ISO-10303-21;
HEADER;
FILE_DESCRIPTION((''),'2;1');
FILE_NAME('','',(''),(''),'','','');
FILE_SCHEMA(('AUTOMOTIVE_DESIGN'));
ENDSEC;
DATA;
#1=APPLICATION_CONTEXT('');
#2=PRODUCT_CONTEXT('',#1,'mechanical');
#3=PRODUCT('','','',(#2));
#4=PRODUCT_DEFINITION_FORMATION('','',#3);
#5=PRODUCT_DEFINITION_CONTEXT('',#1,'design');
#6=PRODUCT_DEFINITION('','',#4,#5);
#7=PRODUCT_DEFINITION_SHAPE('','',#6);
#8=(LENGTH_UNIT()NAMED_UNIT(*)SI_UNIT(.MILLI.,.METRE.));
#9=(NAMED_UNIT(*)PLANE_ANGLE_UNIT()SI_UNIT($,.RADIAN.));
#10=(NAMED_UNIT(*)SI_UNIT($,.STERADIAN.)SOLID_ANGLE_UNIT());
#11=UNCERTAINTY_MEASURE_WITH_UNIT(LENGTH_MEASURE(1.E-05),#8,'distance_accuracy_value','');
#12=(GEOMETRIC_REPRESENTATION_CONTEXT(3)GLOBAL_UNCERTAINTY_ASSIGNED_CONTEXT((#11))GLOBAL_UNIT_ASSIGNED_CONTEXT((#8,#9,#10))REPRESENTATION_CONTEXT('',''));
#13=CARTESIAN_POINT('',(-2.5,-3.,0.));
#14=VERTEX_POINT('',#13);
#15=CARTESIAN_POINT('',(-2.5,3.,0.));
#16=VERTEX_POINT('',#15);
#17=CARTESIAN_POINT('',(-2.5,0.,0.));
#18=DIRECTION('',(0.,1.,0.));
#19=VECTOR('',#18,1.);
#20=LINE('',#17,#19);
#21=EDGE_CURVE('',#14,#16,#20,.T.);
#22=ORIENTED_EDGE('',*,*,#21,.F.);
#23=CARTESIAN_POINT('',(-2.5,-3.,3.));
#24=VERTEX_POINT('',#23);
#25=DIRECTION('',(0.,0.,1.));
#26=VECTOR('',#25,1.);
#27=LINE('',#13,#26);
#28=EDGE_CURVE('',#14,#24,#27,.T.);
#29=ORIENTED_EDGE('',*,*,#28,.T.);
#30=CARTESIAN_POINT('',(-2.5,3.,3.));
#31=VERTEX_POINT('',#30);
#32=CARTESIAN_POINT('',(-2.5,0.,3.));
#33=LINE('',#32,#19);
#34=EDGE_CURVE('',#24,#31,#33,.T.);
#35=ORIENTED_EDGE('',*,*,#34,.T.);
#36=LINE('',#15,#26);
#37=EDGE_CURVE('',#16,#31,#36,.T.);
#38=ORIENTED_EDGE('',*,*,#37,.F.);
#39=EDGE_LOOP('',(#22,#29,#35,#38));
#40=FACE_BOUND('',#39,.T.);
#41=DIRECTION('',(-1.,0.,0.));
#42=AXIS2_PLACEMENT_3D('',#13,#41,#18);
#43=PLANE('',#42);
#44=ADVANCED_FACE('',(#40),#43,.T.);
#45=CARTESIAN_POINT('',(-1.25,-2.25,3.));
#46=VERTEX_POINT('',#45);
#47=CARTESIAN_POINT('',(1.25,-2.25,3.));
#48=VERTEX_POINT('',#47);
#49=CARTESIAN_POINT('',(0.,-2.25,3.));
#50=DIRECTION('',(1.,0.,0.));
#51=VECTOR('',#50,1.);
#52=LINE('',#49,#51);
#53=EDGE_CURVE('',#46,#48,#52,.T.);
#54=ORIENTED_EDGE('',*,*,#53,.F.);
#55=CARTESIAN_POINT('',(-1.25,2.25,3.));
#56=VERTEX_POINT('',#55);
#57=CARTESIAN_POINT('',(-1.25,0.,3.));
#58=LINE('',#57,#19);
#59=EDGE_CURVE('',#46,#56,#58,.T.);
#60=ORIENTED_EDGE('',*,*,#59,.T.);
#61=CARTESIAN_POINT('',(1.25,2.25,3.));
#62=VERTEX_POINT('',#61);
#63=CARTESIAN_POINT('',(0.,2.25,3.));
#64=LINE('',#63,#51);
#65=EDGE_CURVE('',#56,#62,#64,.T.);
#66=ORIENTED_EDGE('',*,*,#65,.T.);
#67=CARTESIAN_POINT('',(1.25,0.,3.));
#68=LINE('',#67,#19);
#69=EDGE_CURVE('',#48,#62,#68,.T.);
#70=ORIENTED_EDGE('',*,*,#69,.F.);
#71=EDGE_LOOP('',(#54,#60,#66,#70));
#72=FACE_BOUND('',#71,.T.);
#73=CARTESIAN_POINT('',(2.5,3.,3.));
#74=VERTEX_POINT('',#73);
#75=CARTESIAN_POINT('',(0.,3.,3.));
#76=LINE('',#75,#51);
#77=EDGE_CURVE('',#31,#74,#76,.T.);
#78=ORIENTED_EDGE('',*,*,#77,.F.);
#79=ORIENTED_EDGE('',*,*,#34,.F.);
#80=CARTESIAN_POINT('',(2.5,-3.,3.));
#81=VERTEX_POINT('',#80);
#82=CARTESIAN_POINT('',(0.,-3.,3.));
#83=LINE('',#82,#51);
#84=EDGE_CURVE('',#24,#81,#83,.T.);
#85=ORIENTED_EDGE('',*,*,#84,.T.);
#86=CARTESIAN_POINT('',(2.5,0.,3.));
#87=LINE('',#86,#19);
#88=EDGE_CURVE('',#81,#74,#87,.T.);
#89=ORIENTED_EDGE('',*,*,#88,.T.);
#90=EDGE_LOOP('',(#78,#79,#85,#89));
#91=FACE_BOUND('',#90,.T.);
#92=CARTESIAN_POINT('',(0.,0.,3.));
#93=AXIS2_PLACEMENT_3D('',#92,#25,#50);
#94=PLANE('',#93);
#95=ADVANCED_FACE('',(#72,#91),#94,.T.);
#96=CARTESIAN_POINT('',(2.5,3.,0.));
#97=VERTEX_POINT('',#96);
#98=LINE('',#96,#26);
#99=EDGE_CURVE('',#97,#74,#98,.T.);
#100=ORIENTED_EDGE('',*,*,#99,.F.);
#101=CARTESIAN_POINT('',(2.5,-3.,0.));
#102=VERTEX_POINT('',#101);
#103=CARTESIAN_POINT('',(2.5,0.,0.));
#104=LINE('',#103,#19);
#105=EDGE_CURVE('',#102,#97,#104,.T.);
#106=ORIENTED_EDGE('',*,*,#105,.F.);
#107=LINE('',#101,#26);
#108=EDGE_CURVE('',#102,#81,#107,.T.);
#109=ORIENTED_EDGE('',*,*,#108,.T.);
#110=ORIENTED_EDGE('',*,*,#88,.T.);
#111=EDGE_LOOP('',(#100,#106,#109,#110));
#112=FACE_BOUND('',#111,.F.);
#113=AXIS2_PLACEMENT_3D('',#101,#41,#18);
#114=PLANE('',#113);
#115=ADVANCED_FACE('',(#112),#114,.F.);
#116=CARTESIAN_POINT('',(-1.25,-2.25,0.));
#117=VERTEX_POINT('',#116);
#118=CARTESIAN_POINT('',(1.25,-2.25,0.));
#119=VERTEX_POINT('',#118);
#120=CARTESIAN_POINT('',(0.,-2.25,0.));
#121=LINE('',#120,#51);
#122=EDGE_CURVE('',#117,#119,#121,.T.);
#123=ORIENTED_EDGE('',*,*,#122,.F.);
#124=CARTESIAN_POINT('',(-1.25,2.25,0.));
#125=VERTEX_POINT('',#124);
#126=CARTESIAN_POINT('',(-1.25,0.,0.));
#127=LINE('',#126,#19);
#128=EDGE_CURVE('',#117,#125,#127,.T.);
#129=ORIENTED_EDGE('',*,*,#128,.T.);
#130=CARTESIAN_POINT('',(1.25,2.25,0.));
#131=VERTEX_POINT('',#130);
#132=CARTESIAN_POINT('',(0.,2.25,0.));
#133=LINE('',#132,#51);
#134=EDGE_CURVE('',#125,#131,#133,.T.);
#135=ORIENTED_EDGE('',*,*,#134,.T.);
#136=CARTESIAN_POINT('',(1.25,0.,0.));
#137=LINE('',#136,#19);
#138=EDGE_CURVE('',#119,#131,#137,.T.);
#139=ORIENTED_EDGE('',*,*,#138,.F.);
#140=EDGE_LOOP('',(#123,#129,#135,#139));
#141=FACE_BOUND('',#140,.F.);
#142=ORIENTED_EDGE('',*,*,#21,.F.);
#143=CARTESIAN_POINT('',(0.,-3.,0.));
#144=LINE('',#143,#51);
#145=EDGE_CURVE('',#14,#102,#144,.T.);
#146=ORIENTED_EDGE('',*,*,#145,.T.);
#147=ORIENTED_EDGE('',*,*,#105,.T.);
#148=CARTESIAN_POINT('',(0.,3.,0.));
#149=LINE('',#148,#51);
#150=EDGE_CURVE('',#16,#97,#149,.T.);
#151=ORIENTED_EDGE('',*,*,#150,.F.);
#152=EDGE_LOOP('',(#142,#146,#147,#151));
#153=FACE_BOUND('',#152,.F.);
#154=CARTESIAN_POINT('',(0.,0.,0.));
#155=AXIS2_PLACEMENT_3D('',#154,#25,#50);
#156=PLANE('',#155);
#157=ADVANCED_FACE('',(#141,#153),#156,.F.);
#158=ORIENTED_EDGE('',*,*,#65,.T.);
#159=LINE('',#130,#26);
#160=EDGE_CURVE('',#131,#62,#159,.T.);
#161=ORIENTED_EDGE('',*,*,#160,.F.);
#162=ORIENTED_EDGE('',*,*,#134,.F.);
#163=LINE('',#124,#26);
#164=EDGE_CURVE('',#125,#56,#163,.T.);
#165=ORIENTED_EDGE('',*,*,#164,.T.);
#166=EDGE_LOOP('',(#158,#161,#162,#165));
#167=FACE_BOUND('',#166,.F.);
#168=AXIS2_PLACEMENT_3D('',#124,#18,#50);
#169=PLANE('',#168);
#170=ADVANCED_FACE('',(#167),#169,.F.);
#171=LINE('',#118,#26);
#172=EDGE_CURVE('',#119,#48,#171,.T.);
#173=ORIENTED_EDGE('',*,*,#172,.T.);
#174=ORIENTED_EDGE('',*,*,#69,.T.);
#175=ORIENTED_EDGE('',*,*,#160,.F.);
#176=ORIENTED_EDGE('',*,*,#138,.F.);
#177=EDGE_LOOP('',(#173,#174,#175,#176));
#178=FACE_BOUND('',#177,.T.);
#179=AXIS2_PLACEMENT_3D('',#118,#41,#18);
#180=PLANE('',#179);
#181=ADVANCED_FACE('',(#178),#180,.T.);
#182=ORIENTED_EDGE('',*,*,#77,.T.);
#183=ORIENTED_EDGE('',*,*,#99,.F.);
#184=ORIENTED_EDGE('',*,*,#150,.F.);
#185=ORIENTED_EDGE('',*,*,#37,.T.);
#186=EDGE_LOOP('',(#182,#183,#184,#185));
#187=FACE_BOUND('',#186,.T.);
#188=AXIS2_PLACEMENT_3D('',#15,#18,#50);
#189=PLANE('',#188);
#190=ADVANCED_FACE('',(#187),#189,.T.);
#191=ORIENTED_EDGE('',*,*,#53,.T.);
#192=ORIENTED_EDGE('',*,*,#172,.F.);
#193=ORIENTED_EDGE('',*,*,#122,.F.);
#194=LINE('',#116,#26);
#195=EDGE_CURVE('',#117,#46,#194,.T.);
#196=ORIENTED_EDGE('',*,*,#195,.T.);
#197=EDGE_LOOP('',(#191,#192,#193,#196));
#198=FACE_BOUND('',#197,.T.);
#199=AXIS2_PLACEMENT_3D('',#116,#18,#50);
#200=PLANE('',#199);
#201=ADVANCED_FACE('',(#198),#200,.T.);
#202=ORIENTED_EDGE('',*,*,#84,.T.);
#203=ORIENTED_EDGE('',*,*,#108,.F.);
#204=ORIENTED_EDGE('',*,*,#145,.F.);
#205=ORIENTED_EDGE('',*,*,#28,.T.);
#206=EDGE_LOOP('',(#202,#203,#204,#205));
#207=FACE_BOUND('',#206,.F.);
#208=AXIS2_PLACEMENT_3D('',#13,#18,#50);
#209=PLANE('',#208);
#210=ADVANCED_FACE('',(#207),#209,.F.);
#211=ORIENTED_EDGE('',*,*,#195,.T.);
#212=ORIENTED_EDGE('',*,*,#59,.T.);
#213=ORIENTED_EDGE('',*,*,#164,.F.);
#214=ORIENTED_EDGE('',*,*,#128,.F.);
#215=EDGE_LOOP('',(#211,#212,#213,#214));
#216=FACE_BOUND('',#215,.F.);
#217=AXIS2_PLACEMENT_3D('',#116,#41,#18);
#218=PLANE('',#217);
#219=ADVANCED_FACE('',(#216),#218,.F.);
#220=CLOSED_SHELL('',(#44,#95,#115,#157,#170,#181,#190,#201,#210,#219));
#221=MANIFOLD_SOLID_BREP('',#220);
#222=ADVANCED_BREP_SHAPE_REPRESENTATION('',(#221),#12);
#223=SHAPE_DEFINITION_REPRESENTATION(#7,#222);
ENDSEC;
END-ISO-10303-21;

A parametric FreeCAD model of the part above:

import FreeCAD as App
import Part
import Sketcher

V = App.Vector
Q = App.Units.Quantity


def add_polygon(sketch, points):
    """Adds a closed chain of lines whose ends are joined by coincident constraints."""
    first, n = sketch.GeometryCount, len(points)
    for a, b in zip(points, points[1:] + points[:1]):
        sketch.addGeometry(Part.LineSegment(App.Vector(*a, 0), App.Vector(*b, 0)), False)
    for i in range(n):
        sketch.addConstraint(Sketcher.Constraint("Coincident", first + i, 2, first + (i + 1) % n, 1))

doc = App.newDocument("Part")
body = doc.addObject("PartDesign::Body", "Body")

sketch1 = body.newObject("Sketcher::SketchObject", "Sketch")
sketch1.AttachmentSupport = (doc.getObject("XY_Plane"), [""])
sketch1.MapMode = "FlatFace"
add_polygon(sketch1, [(-2.5, 3), (-2.5, -3), (2.5, -3), (2.5, 3)])
add_polygon(sketch1, [(1.2, -2.2), (-1.2, -2.2), (-1.2, 2.2), (1.2, 2.2)])
sketch1.addConstraint(Sketcher.Constraint("Vertical", 0))
sketch1.addConstraint(Sketcher.Constraint("Horizontal", 1))
sketch1.addConstraint(Sketcher.Constraint("Vertical", 2))
sketch1.addConstraint(Sketcher.Constraint("Horizontal", 3))
sketch1.addConstraint(Sketcher.Constraint("Horizontal", 4))
sketch1.addConstraint(Sketcher.Constraint("Vertical", 5))
sketch1.addConstraint(Sketcher.Constraint("Horizontal", 6))
sketch1.addConstraint(Sketcher.Constraint("Vertical", 7))
sketch1.addConstraint(Sketcher.Constraint("Symmetric", 0, 2, 2, 2, -1, 1))
sketch1.addConstraint(Sketcher.Constraint("Symmetric", 4, 2, 6, 2, -1, 1))
sketch1.addConstraint(Sketcher.Constraint("DistanceX", 1, 1, 1, 2, Q("5 mm")))
sketch1.addConstraint(Sketcher.Constraint("DistanceY", 0, 2, 0, 1, Q("6 mm")))
sketch1.addConstraint(Sketcher.Constraint("DistanceX", 4, 2, 4, 1, Q("2.5 mm")))
sketch1.addConstraint(Sketcher.Constraint("DistanceY", 5, 1, 5, 2, Q("4.5 mm")))
pad1 = body.newObject("PartDesign::Pad", "Pad")
pad1.Profile = sketch1
pad1.Length = 3

doc.recompute()
